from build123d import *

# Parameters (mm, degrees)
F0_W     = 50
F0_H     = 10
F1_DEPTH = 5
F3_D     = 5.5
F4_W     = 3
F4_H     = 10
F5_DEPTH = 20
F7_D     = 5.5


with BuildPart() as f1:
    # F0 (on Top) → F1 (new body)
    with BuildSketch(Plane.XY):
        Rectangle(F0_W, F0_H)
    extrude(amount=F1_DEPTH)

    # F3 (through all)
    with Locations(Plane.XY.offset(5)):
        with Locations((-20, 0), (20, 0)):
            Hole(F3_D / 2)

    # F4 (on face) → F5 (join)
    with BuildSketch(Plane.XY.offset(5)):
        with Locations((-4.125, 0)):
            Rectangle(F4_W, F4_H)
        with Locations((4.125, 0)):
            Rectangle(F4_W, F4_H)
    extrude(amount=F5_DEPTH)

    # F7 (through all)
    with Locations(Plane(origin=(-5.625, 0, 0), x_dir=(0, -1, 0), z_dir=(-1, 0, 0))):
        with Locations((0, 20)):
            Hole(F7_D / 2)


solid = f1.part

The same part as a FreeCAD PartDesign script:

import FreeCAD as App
import Part
import Sketcher

V = App.Vector
Q = App.Units.Quantity

doc = App.newDocument("Part")
body = doc.addObject("PartDesign::Body", "Body")

# Sketch on XY plane
sketch1 = body.newObject("Sketcher::SketchObject", "Sketch")
sketch1.AttachmentSupport = (doc.getObject("XY_Plane"), [""])
sketch1.MapMode = "FlatFace"
sketch1.addGeometry([
    Part.LineSegment(V(-25, 5, 0), V(-25, -5, 0)),
    Part.LineSegment(V(-25, -5, 0), V(25, -5, 0)),
    Part.LineSegment(V(25, -5, 0), V(25, 5, 0)),
    Part.LineSegment(V(25, 5, 0), V(-25, 5, 0)),
], False)
sketch1.addConstraint([
    Sketcher.Constraint("Coincident", 0, 2, 1, 1),
    Sketcher.Constraint("Coincident", 1, 2, 2, 1),
    Sketcher.Constraint("Coincident", 2, 2, 3, 1),
    Sketcher.Constraint("Coincident", 3, 2, 0, 1),
    Sketcher.Constraint("Vertical", 0),
    Sketcher.Constraint("Horizontal", 1),
    Sketcher.Constraint("Vertical", 2),
    Sketcher.Constraint("Horizontal", 3),
    Sketcher.Constraint("Symmetric", 0, 2, 2, 2, -1, 1),
    Sketcher.Constraint("DistanceX", 1, 1, 1, 2, Q("50 mm")),
    Sketcher.Constraint("DistanceY", 0, 2, 0, 1, Q("10 mm")),
])
pad1 = body.newObject("PartDesign::Pad", "Pad")
pad1.Profile = sketch1
pad1.Length = 5

# Sketch on XY plane
sketch2 = body.newObject("Sketcher::SketchObject", "Sketch001")
sketch2.AttachmentSupport = (doc.getObject("XY_Plane"), [""])
sketch2.MapMode = "FlatFace"
sketch2.AttachmentOffset = App.Placement(V(0, 0, 5), App.Rotation())
sketch2.addGeometry([
    Part.Circle(V(-20, 0, 0), V(0, 0, 1), 2.75),
    Part.Circle(V(20, 0, 0), V(0, 0, 1), 2.75),
], False)
sketch2.addConstraint([
    Sketcher.Constraint("Equal", 0, 1),
    Sketcher.Constraint("Symmetric", 0, 3, 1, 3, -1, 1),
    Sketcher.Constraint("PointOnObject", 0, 3, -1),
    Sketcher.Constraint("Diameter", 0, Q("5.5 mm")),
    Sketcher.Constraint("DistanceX", 0, 3, -1, 1, Q("20 mm")),
])
doc.recompute()
hole = body.newObject("PartDesign::Hole", "Hole")
hole.Profile = sketch2
hole.ThreadType = "None"
hole.Diameter = 5.5
hole.DepthType = "ThroughAll"

# Sketch on XY plane
sketch3 = body.newObject("Sketcher::SketchObject", "Sketch002")
sketch3.AttachmentSupport = (doc.getObject("XY_Plane"), [""])
sketch3.MapMode = "FlatFace"
sketch3.AttachmentOffset = App.Placement(V(0, 0, 5), App.Rotation())
sketch3.addGeometry([
    Part.LineSegment(V(-5.625, 5, 0), V(-5.625, -5, 0)),  # 0
    Part.LineSegment(V(-5.625, -5, 0), V(-2.625, -5, 0)),  # 1
    Part.LineSegment(V(-2.625, -5, 0), V(-2.625, 5, 0)),  # 2
    Part.LineSegment(V(-2.625, 5, 0), V(-5.625, 5, 0)),  # 3
    Part.LineSegment(V(2.625, 5, 0), V(2.625, -5, 0)),  # 4
    Part.LineSegment(V(2.625, -5, 0), V(5.625, -5, 0)),  # 5
    Part.LineSegment(V(5.625, -5, 0), V(5.625, 5, 0)),  # 6
    Part.LineSegment(V(5.625, 5, 0), V(2.625, 5, 0)),  # 7
], False)
sketch3.addConstraint([
    Sketcher.Constraint("Coincident", 0, 2, 1, 1),
    Sketcher.Constraint("Coincident", 1, 2, 2, 1),
    Sketcher.Constraint("Coincident", 2, 2, 3, 1),
    Sketcher.Constraint("Coincident", 3, 2, 0, 1),
    Sketcher.Constraint("Coincident", 4, 2, 5, 1),
    Sketcher.Constraint("Coincident", 5, 2, 6, 1),
    Sketcher.Constraint("Coincident", 6, 2, 7, 1),
    Sketcher.Constraint("Coincident", 7, 2, 4, 1),
    Sketcher.Constraint("Vertical", 0),
    Sketcher.Constraint("Horizontal", 1),
    Sketcher.Constraint("Vertical", 2),
    Sketcher.Constraint("Horizontal", 3),
    Sketcher.Constraint("Vertical", 4),
    Sketcher.Constraint("Horizontal", 5),
    Sketcher.Constraint("Vertical", 6),
    Sketcher.Constraint("Horizontal", 7),
    Sketcher.Constraint("Symmetric", 2, 2, 4, 2, -1, 1),
    Sketcher.Constraint("Symmetric", 0, 2, 6, 2, -1, 1),
    Sketcher.Constraint("Horizontal", 1, 2, 4, 2),
    Sketcher.Constraint("DistanceX", 1, 1, 1, 2, Q("3 mm")),
    Sketcher.Constraint("DistanceY", 0, 2, 0, 1, Q("10 mm")),
    Sketcher.Constraint("DistanceX", 1, 2, 4, 2, Q("5.25 mm")),
])
pad2 = body.newObject("PartDesign::Pad", "Pad001")
pad2.Profile = sketch3
pad2.Length = 20

# Sketch on YZ plane
sketch4 = body.newObject("Sketcher::SketchObject", "Sketch003")
sketch4.AttachmentSupport = (doc.getObject("YZ_Plane"), [""])
sketch4.MapMode = "FlatFace"
sketch4.AttachmentOffset = App.Placement(V(0, 0, -5.625), App.Rotation())
sketch4.addGeometry(Part.Circle(V(0, 20, 0), V(0, 0, 1), 2.75), False)
sketch4.addConstraint([
    Sketcher.Constraint("PointOnObject", 0, 3, -2),
    Sketcher.Constraint("Diameter", 0, Q("5.5 mm")),
    Sketcher.Constraint("DistanceY", -1, 1, 0, 3, Q("20 mm")),
])
doc.recompute()
hole2 = body.newObject("PartDesign::Hole", "Hole001")
hole2.Profile = sketch4
hole2.ThreadType = "None"
hole2.Diameter = 5.5
hole2.DepthType = "ThroughAll"
hole2.Reversed = True

doc.recompute()
